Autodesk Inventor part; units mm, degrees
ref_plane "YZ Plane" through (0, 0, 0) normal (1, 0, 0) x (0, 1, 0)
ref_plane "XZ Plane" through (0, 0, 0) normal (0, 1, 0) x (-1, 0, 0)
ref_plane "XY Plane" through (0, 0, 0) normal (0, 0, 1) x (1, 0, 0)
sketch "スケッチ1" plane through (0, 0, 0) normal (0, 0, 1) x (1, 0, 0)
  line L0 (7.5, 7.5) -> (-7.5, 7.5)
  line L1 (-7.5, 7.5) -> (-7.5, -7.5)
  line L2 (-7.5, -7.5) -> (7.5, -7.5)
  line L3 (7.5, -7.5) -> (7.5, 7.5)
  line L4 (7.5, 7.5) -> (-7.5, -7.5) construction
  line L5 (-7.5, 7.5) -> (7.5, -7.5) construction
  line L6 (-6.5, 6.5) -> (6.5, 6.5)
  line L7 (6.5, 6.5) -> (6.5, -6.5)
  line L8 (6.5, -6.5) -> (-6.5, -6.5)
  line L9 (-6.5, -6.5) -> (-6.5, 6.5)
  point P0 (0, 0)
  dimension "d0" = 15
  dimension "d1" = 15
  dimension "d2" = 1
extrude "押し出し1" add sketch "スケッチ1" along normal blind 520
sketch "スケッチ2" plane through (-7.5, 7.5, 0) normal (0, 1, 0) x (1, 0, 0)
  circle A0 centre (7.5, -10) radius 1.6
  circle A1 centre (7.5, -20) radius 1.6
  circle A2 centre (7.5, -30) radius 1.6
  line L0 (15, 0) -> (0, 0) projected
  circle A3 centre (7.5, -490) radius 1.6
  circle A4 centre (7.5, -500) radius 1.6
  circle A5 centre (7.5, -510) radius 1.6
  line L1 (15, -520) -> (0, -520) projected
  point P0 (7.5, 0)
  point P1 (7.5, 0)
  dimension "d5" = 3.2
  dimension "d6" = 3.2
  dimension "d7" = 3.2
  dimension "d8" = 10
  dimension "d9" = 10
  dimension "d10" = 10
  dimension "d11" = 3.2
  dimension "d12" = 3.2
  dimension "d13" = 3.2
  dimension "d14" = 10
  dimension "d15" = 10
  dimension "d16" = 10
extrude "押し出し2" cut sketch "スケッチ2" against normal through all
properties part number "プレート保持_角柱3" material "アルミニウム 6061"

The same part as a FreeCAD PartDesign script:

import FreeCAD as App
import Part
import Sketcher

V = App.Vector

doc = App.newDocument("Part")
body = doc.addObject("PartDesign::Body", "Body")

sketch1 = doc.addObject("Sketcher::SketchObject", "Sketch")
body.addObject(sketch1)
sketch1.AttachmentSupport = (doc.XY_Plane, [""])
sketch1.MapMode = "FlatFace"
sketch1.addGeometry(Part.LineSegment(V(8, -8, 0), V(8, 8, 0)), False)
sketch1.addGeometry(Part.LineSegment(V(8, 8, 0), V(-8, 8, 0)), False)
sketch1.addGeometry(Part.LineSegment(V(-8, 8, 0), V(-8, -8, 0)), False)
sketch1.addGeometry(Part.LineSegment(V(-8, -8, 0), V(8, -8, 0)), False)
sketch1.addGeometry(Part.LineSegment(V(-6, -6, 0), V(-6, 6, 0)), False)
sketch1.addGeometry(Part.LineSegment(V(-6, 6, 0), V(6, 6, 0)), False)
sketch1.addGeometry(Part.LineSegment(V(6, 6, 0), V(6, -6, 0)), False)
sketch1.addGeometry(Part.LineSegment(V(6, -6, 0), V(-6, -6, 0)), False)
sketch1.addConstraint(Sketcher.Constraint("Coincident", 0, 2, 1, 1))
sketch1.addConstraint(Sketcher.Constraint("Coincident", 1, 2, 2, 1))
sketch1.addConstraint(Sketcher.Constraint("Coincident", 2, 2, 3, 1))
sketch1.addConstraint(Sketcher.Constraint("Coincident", 3, 2, 0, 1))
sketch1.addConstraint(Sketcher.Constraint("Coincident", 4, 2, 5, 1))
sketch1.addConstraint(Sketcher.Constraint("Coincident", 5, 2, 6, 1))
sketch1.addConstraint(Sketcher.Constraint("Coincident", 6, 2, 7, 1))
sketch1.addConstraint(Sketcher.Constraint("Coincident", 7, 2, 4, 1))
sketch1.addConstraint(Sketcher.Constraint("Vertical", 0))
sketch1.addConstraint(Sketcher.Constraint("Horizontal", 1))
sketch1.addConstraint(Sketcher.Constraint("Vertical", 2))
sketch1.addConstraint(Sketcher.Constraint("Horizontal", 3))
sketch1.addConstraint(Sketcher.Constraint("Vertical", 4))
sketch1.addConstraint(Sketcher.Constraint("Horizontal", 5))
sketch1.addConstraint(Sketcher.Constraint("Vertical", 6))
sketch1.addConstraint(Sketcher.Constraint("Horizontal", 7))
sketch1.addConstraint(Sketcher.Constraint("Symmetric", 0, 2, 2, 2, -1, 1))
sketch1.addConstraint(Sketcher.Constraint("Symmetric", 4, 2, 6, 2, -1, 1))
sketch1.addConstraint(Sketcher.Constraint("Equal", 3, 0))
sketch1.addConstraint(Sketcher.Constraint("Equal", 7, 4))
sketch1.addConstraint(Sketcher.Constraint("DistanceX", 1, 2, 1, 1, 15.0))
sketch1.addConstraint(Sketcher.Constraint("DistanceX", 1, 2, 4, 2, 1.0))
pad1 = doc.addObject("PartDesign::Pad", "Pad")
body.addObject(pad1)
pad1.Profile = sketch1
pad1.Length = 520

sketch2 = doc.addObject("Sketcher::SketchObject", "Sketch001")
body.addObject(sketch2)
sketch2.AttachmentSupport = (doc.XZ_Plane, [""])
sketch2.MapMode = "FlatFace"
sketch2.AttachmentOffset = App.Placement(V(0, 0, -7.5), App.Rotation())
sketch2.addGeometry(Part.Circle(V(0, 10, 0), V(0, 0, 1), 1.6), False)
sketch2.addGeometry(Part.Circle(V(0, 20, 0), V(0, 0, 1), 1.6), False)
sketch2.addGeometry(Part.Circle(V(0, 30, 0), V(0, 0, 1), 1.6), False)
sketch2.addGeometry(Part.Circle(V(0, 490, 0), V(0, 0, 1), 1.6), False)
sketch2.addGeometry(Part.Circle(V(0, 500, 0), V(0, 0, 1), 1.6), False)
sketch2.addGeometry(Part.Circle(V(0, 510, 0), V(0, 0, 1), 1.6), False)
sketch2.addConstraint(Sketcher.Constraint("Equal", 0, 1))
sketch2.addConstraint(Sketcher.Constraint("Equal", 1, 2))
sketch2.addConstraint(Sketcher.Constraint("Equal", 2, 3))
sketch2.addConstraint(Sketcher.Constraint("Equal", 3, 4))
sketch2.addConstraint(Sketcher.Constraint("Equal", 4, 5))
sketch2.addConstraint(Sketcher.Constraint("PointOnObject", 0, 3, -2))
sketch2.addConstraint(Sketcher.Constraint("PointOnObject", 1, 3, -2))
sketch2.addConstraint(Sketcher.Constraint("PointOnObject", 2, 3, -2))
sketch2.addConstraint(Sketcher.Constraint("PointOnObject", 3, 3, -2))
sketch2.addConstraint(Sketcher.Constraint("PointOnObject", 4, 3, -2))
sketch2.addConstraint(Sketcher.Constraint("PointOnObject", 5, 3, -2))
sketch2.addConstraint(Sketcher.Constraint("Diameter", 0, 3.2))
sketch2.addConstraint(Sketcher.Constraint("DistanceY", -1, 1, 0, 3, 10.0))
sketch2.addConstraint(Sketcher.Constraint("DistanceY", 0, 3, 1, 3, 10.0))
sketch2.addConstraint(Sketcher.Constraint("DistanceY", 1, 3, 2, 3, 10.0))
sketch2.addConstraint(Sketcher.Constraint("DistanceY", 3, 3, 4, 3, 10.0))
sketch2.addConstraint(Sketcher.Constraint("DistanceY", 4, 3, 5, 3, 10.0))
sketch2.addConstraint(Sketcher.Constraint("DistanceY", -1, 1, 3, 3, 490.0))
pocket1 = doc.addObject("PartDesign::Pocket", "Pocket")
body.addObject(pocket1)
pocket1.Profile = sketch2
pocket1.Type = "ThroughAll"
pocket1.Reversed = True

doc.recompute()
